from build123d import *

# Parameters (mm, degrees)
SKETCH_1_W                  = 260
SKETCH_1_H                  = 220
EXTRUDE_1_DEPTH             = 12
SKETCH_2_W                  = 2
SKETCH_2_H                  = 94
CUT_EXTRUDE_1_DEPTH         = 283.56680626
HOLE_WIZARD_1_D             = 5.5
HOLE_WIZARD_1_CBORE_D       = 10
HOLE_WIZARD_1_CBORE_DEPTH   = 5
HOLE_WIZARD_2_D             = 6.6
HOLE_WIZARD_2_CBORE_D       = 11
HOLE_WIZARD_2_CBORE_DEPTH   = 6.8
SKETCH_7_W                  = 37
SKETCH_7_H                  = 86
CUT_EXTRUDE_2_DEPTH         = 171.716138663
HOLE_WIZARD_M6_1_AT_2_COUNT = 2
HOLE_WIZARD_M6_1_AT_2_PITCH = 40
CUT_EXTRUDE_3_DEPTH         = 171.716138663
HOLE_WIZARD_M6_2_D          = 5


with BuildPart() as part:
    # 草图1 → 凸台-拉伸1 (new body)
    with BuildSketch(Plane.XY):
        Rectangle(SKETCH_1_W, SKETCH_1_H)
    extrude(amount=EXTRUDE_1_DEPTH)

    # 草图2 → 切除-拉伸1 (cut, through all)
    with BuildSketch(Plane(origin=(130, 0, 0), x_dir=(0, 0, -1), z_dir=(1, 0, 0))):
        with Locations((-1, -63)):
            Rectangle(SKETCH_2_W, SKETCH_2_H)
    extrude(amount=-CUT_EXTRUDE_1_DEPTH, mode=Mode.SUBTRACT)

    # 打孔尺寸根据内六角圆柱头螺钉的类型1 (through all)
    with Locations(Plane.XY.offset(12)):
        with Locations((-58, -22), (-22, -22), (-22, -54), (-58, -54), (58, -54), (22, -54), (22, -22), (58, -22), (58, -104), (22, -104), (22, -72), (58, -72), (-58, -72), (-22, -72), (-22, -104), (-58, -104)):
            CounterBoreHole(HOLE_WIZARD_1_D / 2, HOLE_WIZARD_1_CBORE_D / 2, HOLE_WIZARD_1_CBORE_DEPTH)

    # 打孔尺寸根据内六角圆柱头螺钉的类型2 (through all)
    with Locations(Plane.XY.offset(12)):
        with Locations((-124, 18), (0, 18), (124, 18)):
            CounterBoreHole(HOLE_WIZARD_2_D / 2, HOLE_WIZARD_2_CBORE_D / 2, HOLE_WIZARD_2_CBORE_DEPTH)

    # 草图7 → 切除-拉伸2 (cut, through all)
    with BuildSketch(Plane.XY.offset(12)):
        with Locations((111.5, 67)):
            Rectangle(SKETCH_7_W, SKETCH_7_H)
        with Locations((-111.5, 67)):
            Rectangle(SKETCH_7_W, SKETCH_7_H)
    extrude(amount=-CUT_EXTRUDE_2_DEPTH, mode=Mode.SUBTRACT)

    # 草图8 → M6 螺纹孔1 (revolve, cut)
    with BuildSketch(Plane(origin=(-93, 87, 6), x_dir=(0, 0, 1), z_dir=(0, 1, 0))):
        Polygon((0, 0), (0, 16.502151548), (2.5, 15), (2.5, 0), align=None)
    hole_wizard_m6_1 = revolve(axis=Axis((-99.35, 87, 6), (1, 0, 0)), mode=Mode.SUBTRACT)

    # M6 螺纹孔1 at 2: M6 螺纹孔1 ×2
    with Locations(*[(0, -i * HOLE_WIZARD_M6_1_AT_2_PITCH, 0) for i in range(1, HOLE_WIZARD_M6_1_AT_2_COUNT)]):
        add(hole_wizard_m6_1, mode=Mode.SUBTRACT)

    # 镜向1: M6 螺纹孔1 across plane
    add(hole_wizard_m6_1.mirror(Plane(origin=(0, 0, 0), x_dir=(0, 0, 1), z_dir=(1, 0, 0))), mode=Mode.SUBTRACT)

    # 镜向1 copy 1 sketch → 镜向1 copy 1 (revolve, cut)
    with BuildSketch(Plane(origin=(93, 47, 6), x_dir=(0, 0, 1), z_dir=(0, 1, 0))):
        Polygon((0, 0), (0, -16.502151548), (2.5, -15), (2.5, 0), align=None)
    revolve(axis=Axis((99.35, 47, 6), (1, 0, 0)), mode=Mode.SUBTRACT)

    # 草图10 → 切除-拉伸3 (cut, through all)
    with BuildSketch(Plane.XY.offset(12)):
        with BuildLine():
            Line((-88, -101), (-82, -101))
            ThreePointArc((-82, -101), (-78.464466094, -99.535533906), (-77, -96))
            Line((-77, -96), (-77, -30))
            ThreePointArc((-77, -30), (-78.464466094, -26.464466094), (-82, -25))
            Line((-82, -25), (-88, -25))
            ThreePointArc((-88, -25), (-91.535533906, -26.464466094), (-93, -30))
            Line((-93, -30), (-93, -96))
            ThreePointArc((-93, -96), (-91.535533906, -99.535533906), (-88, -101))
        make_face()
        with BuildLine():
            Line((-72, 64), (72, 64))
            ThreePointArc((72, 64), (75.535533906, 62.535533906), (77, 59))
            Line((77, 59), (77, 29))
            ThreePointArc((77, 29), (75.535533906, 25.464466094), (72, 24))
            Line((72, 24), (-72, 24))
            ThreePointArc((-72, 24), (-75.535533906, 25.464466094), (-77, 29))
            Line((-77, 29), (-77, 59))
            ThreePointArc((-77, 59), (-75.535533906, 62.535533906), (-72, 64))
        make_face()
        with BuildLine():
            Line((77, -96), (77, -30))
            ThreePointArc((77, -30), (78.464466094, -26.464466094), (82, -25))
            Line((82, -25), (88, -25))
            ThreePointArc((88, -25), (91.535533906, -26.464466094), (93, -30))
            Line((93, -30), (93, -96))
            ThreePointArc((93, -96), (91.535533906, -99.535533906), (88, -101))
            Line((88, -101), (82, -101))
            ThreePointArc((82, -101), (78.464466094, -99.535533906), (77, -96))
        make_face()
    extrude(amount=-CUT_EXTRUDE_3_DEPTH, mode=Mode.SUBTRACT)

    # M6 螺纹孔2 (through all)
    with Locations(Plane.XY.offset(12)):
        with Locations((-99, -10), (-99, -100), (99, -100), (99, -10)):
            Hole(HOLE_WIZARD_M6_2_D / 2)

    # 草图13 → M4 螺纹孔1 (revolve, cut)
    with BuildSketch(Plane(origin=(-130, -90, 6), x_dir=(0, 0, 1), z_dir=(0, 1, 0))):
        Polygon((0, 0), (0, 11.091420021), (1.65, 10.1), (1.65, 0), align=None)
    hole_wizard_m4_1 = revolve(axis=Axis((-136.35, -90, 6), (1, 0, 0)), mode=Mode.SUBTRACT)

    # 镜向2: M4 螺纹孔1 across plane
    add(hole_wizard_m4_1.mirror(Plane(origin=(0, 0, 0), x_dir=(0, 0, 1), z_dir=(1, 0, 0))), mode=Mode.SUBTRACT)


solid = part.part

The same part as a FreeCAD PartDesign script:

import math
import FreeCAD as App
import Part
import Sketcher
from FreeCAD import Vector
Q = App.Units.Quantity


def add_polygon(sketch, points):
    """Adds a closed chain of lines whose ends are joined by coincident constraints."""
    first, n = sketch.GeometryCount, len(points)
    for a, b in zip(points, points[1:] + points[:1]):
        sketch.addGeometry(Part.LineSegment(App.Vector(*a, 0), App.Vector(*b, 0)), False)
    for i in range(n):
        sketch.addConstraint(Sketcher.Constraint("Coincident", first + i, 2, first + (i + 1) % n, 1))

doc = App.newDocument("Part")
body = doc.addObject("PartDesign::Body", "Body")

sketch1 = body.newObject("Sketcher::SketchObject", "Sketch")
sketch1.AttachmentSupport = (doc.getObject("XY_Plane"), [""])
sketch1.MapMode = "FlatFace"
add_polygon(sketch1, [(-130, 110), (-130, -110), (130, -110), (130, 110)])
sketch1.addConstraint([
    Sketcher.Constraint("Vertical", 0),
    Sketcher.Constraint("Horizontal", 1),
    Sketcher.Constraint("Vertical", 2),
    Sketcher.Constraint("Horizontal", 3),
    Sketcher.Constraint("Symmetric", 0, 2, 2, 2, -1, 1),
    Sketcher.Constraint("DistanceX", 1, 1, 1, 2, 260.0),
    Sketcher.Constraint("DistanceY", 0, 2, 0, 1, 220.0),
])
pad1 = body.newObject("PartDesign::Pad", "Pad")
pad1.Profile = sketch1
pad1.Length = 12

sketch2 = body.newObject("Sketcher::SketchObject", "Sketch001")
sketch2.AttachmentSupport = (doc.getObject("YZ_Plane"), [""])
sketch2.MapMode = "FlatFace"
sketch2.AttachmentOffset = App.Placement(Vector(0, 0, 130), App.Rotation())
add_polygon(sketch2, [(-16, 2), (-110, 2), (-110, 0), (-16, 0)])
sketch2.addConstraint([
    Sketcher.Constraint("Horizontal", 0),
    Sketcher.Constraint("Vertical", 1),
    Sketcher.Constraint("Horizontal", 2),
    Sketcher.Constraint("Vertical", 3),
    Sketcher.Constraint("PointOnObject", 1, 2, -1),
    Sketcher.Constraint("DistanceX", 0, 2, 0, 1, 94.0),
    Sketcher.Constraint("DistanceY", 1, 2, 1, 1, 2.0),
    Sketcher.Constraint("DistanceX", 0, 2, -1, 1, 110.0),
])
pocket1 = body.newObject("PartDesign::Pocket", "Pocket")
pocket1.Profile = sketch2
pocket1.Type = "ThroughAll"

sketch3 = body.newObject("Sketcher::SketchObject", "Sketch002")
sketch3.AttachmentSupport = (doc.getObject("XY_Plane"), [""])
sketch3.MapMode = "FlatFace"
sketch3.AttachmentOffset = App.Placement(Vector(0, 0, 12), App.Rotation())
sketch3.addGeometry([
    Part.Circle(Vector(-58, -22, 0), Vector(0, 0, 1), 2.8),
    Part.Circle(Vector(-22, -22, 0), Vector(0, 0, 1), 2.8),
    Part.Circle(Vector(-22, -54, 0), Vector(0, 0, 1), 2.8),
    Part.Circle(Vector(-58, -54, 0), Vector(0, 0, 1), 2.8),
    Part.Circle(Vector(58, -54, 0), Vector(0, 0, 1), 2.8),
    Part.Circle(Vector(22, -54, 0), Vector(0, 0, 1), 2.8),
    Part.Circle(Vector(22, -22, 0), Vector(0, 0, 1), 2.8),
    Part.Circle(Vector(58, -22, 0), Vector(0, 0, 1), 2.8),
    Part.Circle(Vector(58, -104, 0), Vector(0, 0, 1), 2.8),
    Part.Circle(Vector(22, -104, 0), Vector(0, 0, 1), 2.8),
    Part.Circle(Vector(22, -72, 0), Vector(0, 0, 1), 2.8),
    Part.Circle(Vector(58, -72, 0), Vector(0, 0, 1), 2.8),
    Part.Circle(Vector(-58, -72, 0), Vector(0, 0, 1), 2.8),
    Part.Circle(Vector(-22, -72, 0), Vector(0, 0, 1), 2.8),
    Part.Circle(Vector(-22, -104, 0), Vector(0, 0, 1), 2.8),
    Part.Circle(Vector(-58, -104, 0), Vector(0, 0, 1), 2.8),
], False)
sketch3.addConstraint([
    Sketcher.Constraint("Equal", 0, 1),
    Sketcher.Constraint("Equal", 1, 2),
    Sketcher.Constraint("Equal", 2, 3),
    Sketcher.Constraint("Equal", 3, 4),
    Sketcher.Constraint("Equal", 4, 5),
    Sketcher.Constraint("Equal", 5, 6),
    Sketcher.Constraint("Equal", 6, 7),
    Sketcher.Constraint("Equal", 7, 8),
    Sketcher.Constraint("Equal", 8, 9),
    Sketcher.Constraint("Equal", 9, 10),
    Sketcher.Constraint("Equal", 10, 11),
    Sketcher.Constraint("Equal", 11, 12),
    Sketcher.Constraint("Equal", 12, 13),
    Sketcher.Constraint("Equal", 13, 14),
    Sketcher.Constraint("Equal", 14, 15),
    Sketcher.Constraint("Symmetric", 3, 3, 4, 3, -2),
    Sketcher.Constraint("Symmetric", 2, 3, 5, 3, -2),
    Sketcher.Constraint("Symmetric", 1, 3, 6, 3, -2),
    Sketcher.Constraint("Symmetric", 0, 3, 7, 3, -2),
    Sketcher.Constraint("Symmetric", 11, 3, 12, 3, -2),
    Sketcher.Constraint("Symmetric", 10, 3, 13, 3, -2),
    Sketcher.Constraint("Symmetric", 9, 3, 14, 3, -2),
    Sketcher.Constraint("Symmetric", 8, 3, 15, 3, -2),
    Sketcher.Constraint("Horizontal", 0, 3, 1, 3),
    Sketcher.Constraint("Horizontal", 2, 3, 3, 3),
    Sketcher.Constraint("Horizontal", 8, 3, 9, 3),
    Sketcher.Constraint("Horizontal", 10, 3, 11, 3),
    Sketcher.Constraint("Vertical", 1, 3, 2, 3),
    Sketcher.Constraint("Vertical", 0, 3, 3, 3),
    Sketcher.Constraint("Vertical", 7, 3, 8, 3),
    Sketcher.Constraint("Vertical", 6, 3, 9, 3),
    Sketcher.Constraint("Vertical", 9, 3, 10, 3),
    Sketcher.Constraint("Vertical", 8, 3, 11, 3),
    Sketcher.Constraint("Diameter", 0, 5.5),
    Sketcher.Constraint("DistanceX", 0, 3, -1, 1, 58.0),
    Sketcher.Constraint("DistanceY", 0, 3, -1, 1, 22.0),
    Sketcher.Constraint("DistanceX", 1, 3, -1, 1, 22.0),
    Sketcher.Constraint("DistanceY", 2, 3, -1, 1, 54.0),
    Sketcher.Constraint("DistanceY", 8, 3, -1, 1, 104.0),
    Sketcher.Constraint("DistanceY", 10, 3, -1, 1, 72.0),
])
doc.recompute()
hole = body.newObject("PartDesign::Hole", "Hole")
hole.Profile = sketch3
hole.ThreadType = "None"
hole.Diameter = 5.5
hole.DepthType = "ThroughAll"
hole.HoleCutType = "Counterbore"
hole.HoleCutDiameter = 10
hole.HoleCutDepth = 5

sketch4 = body.newObject("Sketcher::SketchObject", "Sketch003")
sketch4.AttachmentSupport = (doc.getObject("XY_Plane"), [""])
sketch4.MapMode = "FlatFace"
sketch4.AttachmentOffset = App.Placement(Vector(0, 0, 12), App.Rotation())
sketch4.addGeometry([
    Part.Circle(Vector(-124, 18, 0), Vector(0, 0, 1), 3.3),
    Part.Circle(Vector(0, 18, 0), Vector(0, 0, 1), 3.3),
    Part.Circle(Vector(124, 18, 0), Vector(0, 0, 1), 3.3),
], False)
sketch4.addConstraint([
    Sketcher.Constraint("Equal", 0, 1),
    Sketcher.Constraint("Equal", 1, 2),
    Sketcher.Constraint("Symmetric", 0, 3, 2, 3, -2),
    Sketcher.Constraint("PointOnObject", 1, 3, -2),
    Sketcher.Constraint("Horizontal", 0, 3, 1, 3),
    Sketcher.Constraint("Diameter", 0, 6.6),
    Sketcher.Constraint("DistanceX", 0, 3, -1, 1, 124.0),
    Sketcher.Constraint("DistanceY", -1, 1, 0, 3, 18.0),
])
doc.recompute()
hole2 = body.newObject("PartDesign::Hole", "Hole001")
hole2.Profile = sketch4
hole2.ThreadType = "None"
hole2.Diameter = 6.6
hole2.DepthType = "ThroughAll"
hole2.HoleCutType = "Counterbore"
hole2.HoleCutDiameter = 11
hole2.HoleCutDepth = 6.8

sketch5 = body.newObject("Sketcher::SketchObject", "Sketch004")
sketch5.AttachmentSupport = (doc.getObject("XY_Plane"), [""])
sketch5.MapMode = "FlatFace"
sketch5.AttachmentOffset = App.Placement(Vector(0, 0, 12), App.Rotation())
add_polygon(sketch5, [(93, 110), (93, 24), (130, 24), (130, 110)])
add_polygon(sketch5, [(-130, 110), (-130, 24), (-93, 24), (-93, 110)])
sketch5.addConstraint([
    Sketcher.Constraint("Vertical", 0),
    Sketcher.Constraint("Horizontal", 1),
    Sketcher.Constraint("Vertical", 2),
    Sketcher.Constraint("Horizontal", 3),
    Sketcher.Constraint("Vertical", 4),
    Sketcher.Constraint("Horizontal", 5),
    Sketcher.Constraint("Vertical", 6),
    Sketcher.Constraint("Horizontal", 7),
    Sketcher.Constraint("Symmetric", 1, 2, 4, 2, -2),
    Sketcher.Constraint("Symmetric", 3, 2, 6, 2, -2),
    Sketcher.Constraint("DistanceX", 1, 1, 1, 2, 37.0),
    Sketcher.Constraint("DistanceY", 0, 2, 0, 1, 86.0),
    Sketcher.Constraint("DistanceX", -1, 1, 0, 2, 93.0),
    Sketcher.Constraint("DistanceY", -1, 1, 0, 2, 24.0),
])
pocket2 = body.newObject("PartDesign::Pocket", "Pocket001")
pocket2.Profile = sketch5
pocket2.Type = "ThroughAll"

sketch6 = body.newObject("Sketcher::SketchObject", "Sketch005")
sketch6.AttachmentSupport = (doc.getObject("XZ_Plane"), [""])
sketch6.MapMode = "FlatFace"
sketch6.AttachmentOffset = App.Placement(Vector(0, 0, -87), App.Rotation())
add_polygon(sketch6, [(-76.5, 6), (-93, 6), (-93, 8.5), (-78, 8.5)])
sketch6.addGeometry(Part.LineSegment(Vector(-93, 6, 0), Vector(-76.5, 6, 0)), True)
sketch6.addConstraint([
    Sketcher.Constraint("Horizontal", 0),
    Sketcher.Constraint("Vertical", 1),
    Sketcher.Constraint("Horizontal", 2),
    Sketcher.Constraint("Horizontal", 4),
    Sketcher.Constraint("Coincident", 4, 1, 0, 2),
    Sketcher.Constraint("Equal", 0, 4),
    Sketcher.Constraint("DistanceX", 2, 1, 2, 2, 15.0),
    Sketcher.Constraint("Angle", 3, Q("-59 deg")),
    Sketcher.Constraint("DistanceY", 1, 1, 1, 2, 2.5),
    Sketcher.Constraint("DistanceX", 0, 2, -1, 1, 93.0),
    Sketcher.Constraint("DistanceY", -1, 1, 0, 2, 6.0),
])
groove = body.newObject("PartDesign::Groove", "Groove")
groove.Profile = sketch6
groove.ReferenceAxis = (sketch6, ["Axis0"])
groove.Angle = 360
doc.recompute()

linearpattern = body.newObject("PartDesign::LinearPattern", "LinearPattern")
linearpattern.Originals = [groove]
linearpattern.Direction = (doc.getObject("Y_Axis"), [""])
linearpattern.Mode = "offset"
linearpattern.Offset = 40
linearpattern.Occurrences = 2
linearpattern.Reversed = True
body.Tip = linearpattern
doc.recompute()

mirrored = body.newObject("PartDesign::Mirrored", "Mirrored")
mirrored.Originals = [groove]
mirrored.MirrorPlane = (doc.getObject("YZ_Plane"), [""])
body.Tip = mirrored

sketch7 = body.newObject("Sketcher::SketchObject", "Sketch006")
sketch7.AttachmentSupport = (doc.getObject("XZ_Plane"), [""])
sketch7.MapMode = "FlatFace"
sketch7.AttachmentOffset = App.Placement(Vector(0, 0, -47), App.Rotation())
add_polygon(sketch7, [(93, 6), (76.5, 6), (78, 8.5), (93, 8.5)])
sketch7.addGeometry(Part.LineSegment(Vector(76.5, 6, 0), Vector(93, 6, 0)), True)
sketch7.addConstraint([
    Sketcher.Constraint("Horizontal", 0),
    Sketcher.Constraint("Horizontal", 2),
    Sketcher.Constraint("Vertical", 3),
    Sketcher.Constraint("Horizontal", 4),
    Sketcher.Constraint("Coincident", 4, 1, 0, 2),
    Sketcher.Constraint("Vertical", 2, 2, 4, 2),
    Sketcher.Constraint("DistanceX", 2, 1, 2, 2, 15.0),
    Sketcher.Constraint("Angle", 1, Q("59 deg")),
    Sketcher.Constraint("DistanceY", 3, 2, 3, 1, 2.5),
    Sketcher.Constraint("DistanceY", -1, 1, 0, 2, 6.0),
    Sketcher.Constraint("DistanceX", -1, 1, 1, 2, 78.0),
])
groove2 = body.newObject("PartDesign::Groove", "Groove001")
groove2.Profile = sketch7
groove2.ReferenceAxis = (sketch7, ["Axis0"])
groove2.Angle = 360

sketch8 = body.newObject("Sketcher::SketchObject", "Sketch007")
sketch8.AttachmentSupport = (doc.getObject("XY_Plane"), [""])
sketch8.MapMode = "FlatFace"
sketch8.AttachmentOffset = App.Placement(Vector(0, 0, 12), App.Rotation())
sketch8.addGeometry([
    Part.LineSegment(Vector(-88, -101, 0), Vector(-82, -101, 0)),
    Part.ArcOfCircle(Part.Circle(Vector(-82, -96, 0), Vector(0, 0, 1), 5), math.radians(-90), math.radians(0)),
    Part.LineSegment(Vector(-77, -96, 0), Vector(-77, -30, 0)),
    Part.ArcOfCircle(Part.Circle(Vector(-82, -30, 0), Vector(0, 0, 1), 5), math.radians(0), math.radians(90)),
    Part.LineSegment(Vector(-82, -25, 0), Vector(-88, -25, 0)),
    Part.ArcOfCircle(Part.Circle(Vector(-88, -30, 0), Vector(0, 0, 1), 5), math.radians(90), math.radians(180)),
    Part.LineSegment(Vector(-93, -30, 0), Vector(-93, -96, 0)),
    Part.ArcOfCircle(Part.Circle(Vector(-88, -96, 0), Vector(0, 0, 1), 5), math.radians(180), math.radians(270)),
    Part.LineSegment(Vector(72, 64, 0), Vector(-72, 64, 0)),
    Part.ArcOfCircle(Part.Circle(Vector(-72, 59, 0), Vector(0, 0, 1), 5), math.radians(90), math.radians(180)),
    Part.LineSegment(Vector(-77, 59, 0), Vector(-77, 29, 0)),
    Part.ArcOfCircle(Part.Circle(Vector(-72, 29, 0), Vector(0, 0, 1), 5), math.radians(180), math.radians(270)),
    Part.LineSegment(Vector(-72, 24, 0), Vector(72, 24, 0)),
    Part.ArcOfCircle(Part.Circle(Vector(72, 29, 0), Vector(0, 0, 1), 5), math.radians(-90), math.radians(0)),
    Part.LineSegment(Vector(77, 29, 0), Vector(77, 59, 0)),
    Part.ArcOfCircle(Part.Circle(Vector(72, 59, 0), Vector(0, 0, 1), 5), math.radians(0), math.radians(90)),
    Part.LineSegment(Vector(77, -30, 0), Vector(77, -96, 0)),
    Part.ArcOfCircle(Part.Circle(Vector(82, -96, 0), Vector(0, 0, 1), 5), math.radians(180), math.radians(270)),
    Part.LineSegment(Vector(82, -101, 0), Vector(88, -101, 0)),
    Part.ArcOfCircle(Part.Circle(Vector(88, -96, 0), Vector(0, 0, 1), 5), math.radians(-90), math.radians(0)),
    Part.LineSegment(Vector(93, -96, 0), Vector(93, -30, 0)),
    Part.ArcOfCircle(Part.Circle(Vector(88, -30, 0), Vector(0, 0, 1), 5), math.radians(0), math.radians(90)),
    Part.LineSegment(Vector(88, -25, 0), Vector(82, -25, 0)),
    Part.ArcOfCircle(Part.Circle(Vector(82, -30, 0), Vector(0, 0, 1), 5), math.radians(90), math.radians(180)),
], False)
sketch8.addConstraint([
    Sketcher.Constraint("Tangent", 0, 2, 1, 1),
    Sketcher.Constraint("Tangent", 1, 2, 2, 1),
    Sketcher.Constraint("Tangent", 2, 2, 3, 1),
    Sketcher.Constraint("Tangent", 3, 2, 4, 1),
    Sketcher.Constraint("Tangent", 4, 2, 5, 1),
    Sketcher.Constraint("Tangent", 5, 2, 6, 1),
    Sketcher.Constraint("Tangent", 6, 2, 7, 1),
    Sketcher.Constraint("Tangent", 7, 2, 0, 1),
    Sketcher.Constraint("Tangent", 8, 2, 9, 1),
    Sketcher.Constraint("Tangent", 9, 2, 10, 1),
    Sketcher.Constraint("Tangent", 10, 2, 11, 1),
    Sketcher.Constraint("Tangent", 11, 2, 12, 1),
    Sketcher.Constraint("Tangent", 12, 2, 13, 1),
    Sketcher.Constraint("Tangent", 13, 2, 14, 1),
    Sketcher.Constraint("Tangent", 14, 2, 15, 1),
    Sketcher.Constraint("Tangent", 15, 2, 8, 1),
    Sketcher.Constraint("Tangent", 16, 2, 17, 1),
    Sketcher.Constraint("Tangent", 17, 2, 18, 1),
    Sketcher.Constraint("Tangent", 18, 2, 19, 1),
    Sketcher.Constraint("Tangent", 19, 2, 20, 1),
    Sketcher.Constraint("Tangent", 20, 2, 21, 1),
    Sketcher.Constraint("Tangent", 21, 2, 22, 1),
    Sketcher.Constraint("Tangent", 22, 2, 23, 1),
    Sketcher.Constraint("Tangent", 23, 2, 16, 1),
    Sketcher.Constraint("Horizontal", 0),
    Sketcher.Constraint("Vertical", 2),
    Sketcher.Constraint("Horizontal", 4),
    Sketcher.Constraint("Vertical", 6),
    Sketcher.Constraint("Horizontal", 8),
    Sketcher.Constraint("Vertical", 10),
    Sketcher.Constraint("Horizontal", 12),
    Sketcher.Constraint("Vertical", 14),
    Sketcher.Constraint("Vertical", 16),
    Sketcher.Constraint("Horizontal", 18),
    Sketcher.Constraint("Vertical", 20),
    Sketcher.Constraint("Horizontal", 22),
    Sketcher.Constraint("Equal", 1, 3),
    Sketcher.Constraint("Equal", 3, 5),
    Sketcher.Constraint("Equal", 5, 7),
    Sketcher.Constraint("Equal", 7, 9),
    Sketcher.Constraint("Equal", 9, 11),
    Sketcher.Constraint("Equal", 11, 13),
    Sketcher.Constraint("Equal", 13, 15),
    Sketcher.Constraint("Equal", 15, 17),
    Sketcher.Constraint("Equal", 17, 19),
    Sketcher.Constraint("Equal", 19, 21),
    Sketcher.Constraint("Equal", 21, 23),
    Sketcher.Constraint("Symmetric", 1, 3, 17, 3, -2),
    Sketcher.Constraint("Symmetric", 5, 3, 21, 3, -2),
    Sketcher.Constraint("Vertical", 2, 2, 9, 2),
    Sketcher.Constraint("Vertical", 14, 2, 16, 2),
    Sketcher.Constraint("Radius", 1, 5.0),
    Sketcher.Constraint("DistanceX", 0, 1, 0, 2, 6.0),
    Sketcher.Constraint("DistanceX", 8, 2, 8, 1, 144.0),
    Sketcher.Constraint("DistanceY", 2, 1, 2, 2, 66.0),
    Sketcher.Constraint("DistanceY", 10, 2, 10, 1, 30.0),
    Sketcher.Constraint("DistanceY", 1, 3, -1, 1, 96.0),
    Sketcher.Constraint("DistanceY", -1, 1, 9, 3, 59.0),
])
pocket3 = body.newObject("PartDesign::Pocket", "Pocket002")
pocket3.Profile = sketch8
pocket3.Type = "ThroughAll"

sketch9 = body.newObject("Sketcher::SketchObject", "Sketch008")
sketch9.AttachmentSupport = (doc.getObject("XY_Plane"), [""])
sketch9.MapMode = "FlatFace"
sketch9.AttachmentOffset = App.Placement(Vector(0, 0, 12), App.Rotation())
sketch9.addGeometry([
    Part.Circle(Vector(-99, -10, 0), Vector(0, 0, 1), 2.5),
    Part.Circle(Vector(-99, -100, 0), Vector(0, 0, 1), 2.5),
    Part.Circle(Vector(99, -100, 0), Vector(0, 0, 1), 2.5),
    Part.Circle(Vector(99, -10, 0), Vector(0, 0, 1), 2.5),
], False)
sketch9.addConstraint([
    Sketcher.Constraint("Equal", 0, 1),
    Sketcher.Constraint("Equal", 1, 2),
    Sketcher.Constraint("Equal", 2, 3),
    Sketcher.Constraint("Symmetric", 1, 3, 2, 3, -2),
    Sketcher.Constraint("Symmetric", 0, 3, 3, 3, -2),
    Sketcher.Constraint("Vertical", 0, 3, 1, 3),
    Sketcher.Constraint("Diameter", 0, 5.0),
    Sketcher.Constraint("DistanceX", 0, 3, -1, 1, 99.0),
    Sketcher.Constraint("DistanceY", 0, 3, -1, 1, 10.0),
    Sketcher.Constraint("DistanceY", 1, 3, -1, 1, 100.0),
])
doc.recompute()
hole3 = body.newObject("PartDesign::Hole", "Hole002")
hole3.Profile = sketch9
hole3.ThreadType = "None"
hole3.Diameter = 5
hole3.DepthType = "ThroughAll"

sketch10 = body.newObject("Sketcher::SketchObject", "Sketch009")
sketch10.AttachmentSupport = (doc.getObject("XZ_Plane"), [""])
sketch10.MapMode = "FlatFace"
sketch10.AttachmentOffset = App.Placement(Vector(0, 0, 90), App.Rotation())
add_polygon(sketch10, [(-118.9, 6), (-130, 6), (-130, 7.7), (-119.9, 7.7)])
sketch10.addGeometry(Part.LineSegment(Vector(-130, 6, 0), Vector(-118.9, 6, 0)), True)
sketch10.addConstraint([
    Sketcher.Constraint("Horizontal", 0),
    Sketcher.Constraint("Vertical", 1),
    Sketcher.Constraint("Horizontal", 2),
    Sketcher.Constraint("Horizontal", 4),
    Sketcher.Constraint("Coincident", 4, 1, 0, 2),
    Sketcher.Constraint("Equal", 0, 4),
    Sketcher.Constraint("Angle", 3, Q("-59 deg")),
    Sketcher.Constraint("DistanceX", 2, 1, 2, 2, 10.1),
    Sketcher.Constraint("DistanceX", 0, 2, -1, 1, 130.0),
    Sketcher.Constraint("DistanceY", -1, 1, 0, 2, 6.0),
    Sketcher.Constraint("DistanceY", 1, 1, 1, 2, 1.65),
])
groove3 = body.newObject("PartDesign::Groove", "Groove002")
groove3.Profile = sketch10
groove3.ReferenceAxis = (sketch10, ["Axis0"])
groove3.Angle = 360
doc.recompute()

mirrored2 = body.newObject("PartDesign::Mirrored", "Mirrored001")
mirrored2.Originals = [groove3]
mirrored2.MirrorPlane = (doc.getObject("YZ_Plane"), [""])
body.Tip = mirrored2

doc.recompute()
